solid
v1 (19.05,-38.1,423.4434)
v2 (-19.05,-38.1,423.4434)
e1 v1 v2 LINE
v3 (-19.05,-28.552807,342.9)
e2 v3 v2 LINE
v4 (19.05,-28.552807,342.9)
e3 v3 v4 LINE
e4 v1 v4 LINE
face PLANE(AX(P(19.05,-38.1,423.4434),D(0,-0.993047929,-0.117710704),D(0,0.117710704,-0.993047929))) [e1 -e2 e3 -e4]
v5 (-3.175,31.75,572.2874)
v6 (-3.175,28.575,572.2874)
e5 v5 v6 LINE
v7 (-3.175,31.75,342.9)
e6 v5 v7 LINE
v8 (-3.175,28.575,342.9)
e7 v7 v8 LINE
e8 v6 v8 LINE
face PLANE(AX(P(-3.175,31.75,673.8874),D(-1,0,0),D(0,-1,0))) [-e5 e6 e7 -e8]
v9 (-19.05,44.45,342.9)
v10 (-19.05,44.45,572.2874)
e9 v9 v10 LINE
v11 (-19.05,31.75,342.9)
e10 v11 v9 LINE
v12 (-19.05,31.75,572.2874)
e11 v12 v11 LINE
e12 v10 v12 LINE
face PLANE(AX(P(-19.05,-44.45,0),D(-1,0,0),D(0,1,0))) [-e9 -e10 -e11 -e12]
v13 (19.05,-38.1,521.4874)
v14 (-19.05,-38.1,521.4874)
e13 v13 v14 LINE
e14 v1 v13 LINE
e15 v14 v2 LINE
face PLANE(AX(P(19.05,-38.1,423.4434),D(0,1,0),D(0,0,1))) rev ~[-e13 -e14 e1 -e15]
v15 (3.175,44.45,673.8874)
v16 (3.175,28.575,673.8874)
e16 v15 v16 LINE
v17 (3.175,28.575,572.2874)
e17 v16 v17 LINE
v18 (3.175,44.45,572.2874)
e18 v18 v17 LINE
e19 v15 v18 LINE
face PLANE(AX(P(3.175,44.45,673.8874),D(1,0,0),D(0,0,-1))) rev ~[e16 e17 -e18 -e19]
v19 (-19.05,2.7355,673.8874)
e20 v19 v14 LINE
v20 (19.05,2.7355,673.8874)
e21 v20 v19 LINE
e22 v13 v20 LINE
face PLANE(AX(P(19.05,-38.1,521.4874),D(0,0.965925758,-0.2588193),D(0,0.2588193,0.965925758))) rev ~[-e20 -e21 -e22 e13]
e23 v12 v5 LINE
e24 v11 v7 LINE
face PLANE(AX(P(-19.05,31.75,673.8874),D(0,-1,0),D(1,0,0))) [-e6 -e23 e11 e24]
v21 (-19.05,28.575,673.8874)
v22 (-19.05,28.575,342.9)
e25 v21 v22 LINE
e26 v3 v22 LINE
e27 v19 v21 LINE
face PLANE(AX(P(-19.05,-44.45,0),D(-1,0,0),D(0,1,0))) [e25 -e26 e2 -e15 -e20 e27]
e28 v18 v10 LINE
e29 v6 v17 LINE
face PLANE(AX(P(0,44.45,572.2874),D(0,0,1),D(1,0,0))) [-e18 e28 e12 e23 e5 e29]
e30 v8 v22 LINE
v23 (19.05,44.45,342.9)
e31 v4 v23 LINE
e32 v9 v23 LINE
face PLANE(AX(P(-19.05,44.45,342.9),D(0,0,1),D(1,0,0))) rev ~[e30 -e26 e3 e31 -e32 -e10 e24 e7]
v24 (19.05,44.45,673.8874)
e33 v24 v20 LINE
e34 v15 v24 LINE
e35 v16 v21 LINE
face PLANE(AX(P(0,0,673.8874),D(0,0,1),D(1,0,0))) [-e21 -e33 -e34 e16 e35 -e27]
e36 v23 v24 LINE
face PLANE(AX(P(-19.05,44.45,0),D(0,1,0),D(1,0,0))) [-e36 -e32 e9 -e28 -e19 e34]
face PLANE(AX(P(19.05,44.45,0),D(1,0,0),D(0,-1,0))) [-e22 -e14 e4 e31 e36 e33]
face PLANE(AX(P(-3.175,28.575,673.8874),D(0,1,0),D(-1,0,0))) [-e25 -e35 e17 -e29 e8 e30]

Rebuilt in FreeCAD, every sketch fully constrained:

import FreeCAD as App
import Part
import Sketcher

V = App.Vector
Q = App.Units.Quantity

doc = App.newDocument("Part")
body = doc.addObject("PartDesign::Body", "Body")

# Sketch on XY plane
sketch1 = body.newObject("Sketcher::SketchObject", "Sketch")
sketch1.AttachmentSupport = (doc.getObject("XY_Plane"), [""])
sketch1.MapMode = "FlatFace"
sketch1.addGeometry([
    Part.LineSegment(V(-19, -44, 0), V(19, -44, 0)),
    Part.LineSegment(V(19, -44, 0), V(19, 44, 0)),
    Part.LineSegment(V(19, 44, 0), V(-19, 44, 0)),
    Part.LineSegment(V(-19, 44, 0), V(-19, -44, 0)),
], False)
sketch1.addConstraint([
    Sketcher.Constraint("Coincident", 0, 2, 1, 1),
    Sketcher.Constraint("Coincident", 1, 2, 2, 1),
    Sketcher.Constraint("Coincident", 2, 2, 3, 1),
    Sketcher.Constraint("Coincident", 3, 2, 0, 1),
    Sketcher.Constraint("Horizontal", 0),
    Sketcher.Constraint("Vertical", 1),
    Sketcher.Constraint("Horizontal", 2),
    Sketcher.Constraint("Vertical", 3),
    Sketcher.Constraint("Symmetric", 0, 2, 2, 2, -1, 1),
    Sketcher.Constraint("DistanceX", 0, 1, 0, 2, Q("1.5 in")),
    Sketcher.Constraint("DistanceY", 1, 1, 1, 2, Q("3.5 in")),
])
pad1 = body.newObject("PartDesign::Pad", "Pad")
pad1.Profile = sketch1
pad1.Length = Q("26.531 in")

# Sketch on YZ plane
sketch2 = body.newObject("Sketcher::SketchObject", "Sketch001")
sketch2.AttachmentSupport = (doc.getObject("YZ_Plane"), [""])
sketch2.MapMode = "FlatFace"
sketch2.AttachmentOffset = App.Placement(V(0, 0, 0.75 * 25.4), App.Rotation())
sketch2.addGeometry([
    Part.LineSegment(V(-44, 674, 0), V(-44, 0, 0)),  # 0
    Part.LineSegment(V(-44, 0, 0), V(-18, 0, 0)),  # 1
    Part.LineSegment(V(-18, 0, 0), V(-18, 252, 0)),  # 2
    Part.LineSegment(V(-18, 252, 0), V(-38, 423, 0)),  # 3
    Part.LineSegment(V(-38, 423, 0), V(-38, 521, 0)),  # 4
    Part.LineSegment(V(-38, 521, 0), V(3, 674, 0)),  # 5
    Part.LineSegment(V(3, 674, 0), V(-44, 674, 0)),  # 6
], False)
sketch2.addConstraint([
    Sketcher.Constraint("Coincident", 0, 2, 1, 1),
    Sketcher.Constraint("Coincident", 1, 2, 2, 1),
    Sketcher.Constraint("Coincident", 2, 2, 3, 1),
    Sketcher.Constraint("Coincident", 3, 2, 4, 1),
    Sketcher.Constraint("Coincident", 4, 2, 5, 1),
    Sketcher.Constraint("Coincident", 5, 2, 6, 1),
    Sketcher.Constraint("Coincident", 6, 2, 0, 1),
    Sketcher.Constraint("Vertical", 0),
    Sketcher.Constraint("Horizontal", 1),
    Sketcher.Constraint("Vertical", 2),
    Sketcher.Constraint("Vertical", 4),
    Sketcher.Constraint("Horizontal", 6),
    Sketcher.Constraint("PointOnObject", 0, 2, -1),
    Sketcher.Constraint("DistanceY", 4, 2, 5, 2, Q("6 in")),
    Sketcher.Constraint("DistanceY", 4, 1, 4, 2, Q("3.86 in")),
    Sketcher.Constraint("DistanceX", 3, 2, 2, 2, Q("0.8 in")),
    Sketcher.Constraint("DistanceX", 0, 2, 3, 2, Q("0.25 in")),
    Sketcher.Constraint("Angle", 5, Q("75 deg")),
    Sketcher.Constraint("DistanceX", 1, 2, -1, 1, Q("0.7 in")),
    Sketcher.Constraint("DistanceY", 0, 2, 0, 1, Q("26.531 in")),
    Sketcher.Constraint("Angle", 3, Q("96.76 deg")),
])
pocket1 = body.newObject("PartDesign::Pocket", "Pocket")
pocket1.Profile = sketch2
pocket1.Length = Q("6 in")

# Sketch on XZ plane
sketch3 = body.newObject("Sketcher::SketchObject", "Sketch002")
sketch3.AttachmentSupport = (doc.getObject("XZ_Plane"), [""])
sketch3.MapMode = "FlatFace"
sketch3.AttachmentOffset = App.Placement(V(0, 0, -1.75 * 25.4), App.Rotation())
sketch3.addGeometry([
    Part.LineSegment(V(3, 674, 0), V(3, 572, 0)),
    Part.LineSegment(V(3, 572, 0), V(-19, 572, 0)),
    Part.LineSegment(V(-19, 572, 0), V(-19, 674, 0)),
    Part.LineSegment(V(-19, 674, 0), V(3, 674, 0)),
], False)
sketch3.addConstraint([
    Sketcher.Constraint("Coincident", 0, 2, 1, 1),
    Sketcher.Constraint("Coincident", 1, 2, 2, 1),
    Sketcher.Constraint("Coincident", 2, 2, 3, 1),
    Sketcher.Constraint("Coincident", 3, 2, 0, 1),
    Sketcher.Constraint("Vertical", 0),
    Sketcher.Constraint("Horizontal", 1),
    Sketcher.Constraint("Vertical", 2),
    Sketcher.Constraint("Horizontal", 3),
    Sketcher.Constraint("DistanceY", 0, 2, 0, 1, Q("4 in")),
    Sketcher.Constraint("DistanceX", 1, 2, 1, 1, Q("0.875 in")),
    Sketcher.Constraint("DistanceX", 1, 2, -1, 1, Q("0.75 in")),
    Sketcher.Constraint("DistanceY", -1, 1, 0, 2, Q("22.531 in")),
])
pocket2 = body.newObject("PartDesign::Pocket", "Pocket001")
pocket2.Profile = sketch3
pocket2.Length = Q("0.625 in")
pocket2.Reversed = True

# Sketch on XZ plane
sketch4 = body.newObject("Sketcher::SketchObject", "Sketch003")
sketch4.AttachmentSupport = (doc.getObject("XZ_Plane"), [""])
sketch4.MapMode = "FlatFace"
sketch4.AttachmentOffset = App.Placement(V(0, 0, -1.75 * 25.4), App.Rotation())
sketch4.addGeometry([
    Part.LineSegment(V(19, 343, 0), V(19, 216, 0)),
    Part.LineSegment(V(19, 216, 0), V(-19, 216, 0)),
    Part.LineSegment(V(-19, 216, 0), V(-19, 343, 0)),
    Part.LineSegment(V(-19, 343, 0), V(19, 343, 0)),
], False)
sketch4.addConstraint([
    Sketcher.Constraint("Coincident", 0, 2, 1, 1),
    Sketcher.Constraint("Coincident", 1, 2, 2, 1),
    Sketcher.Constraint("Coincident", 2, 2, 3, 1),
    Sketcher.Constraint("Coincident", 3, 2, 0, 1),
    Sketcher.Constraint("Vertical", 0),
    Sketcher.Constraint("Horizontal", 1),
    Sketcher.Constraint("Vertical", 2),
    Sketcher.Constraint("Horizontal", 3),
    Sketcher.Constraint("DistanceY", 0, 2, 0, 1, Q("5 in")),
    Sketcher.Constraint("DistanceX", 1, 2, 1, 1, Q("1.5 in")),
    Sketcher.Constraint("DistanceY", -1, 1, 0, 2, Q("8.5 in")),
    Sketcher.Constraint("DistanceX", -1, 1, 0, 2, Q("0.75 in")),
])
pocket3 = body.newObject("PartDesign::Pocket", "Pocket002")
pocket3.Profile = sketch4
pocket3.Length = Q("0.625 in")
pocket3.Reversed = True

# Sketch on XY plane
sketch5 = body.newObject("Sketcher::SketchObject", "Sketch004")
sketch5.AttachmentSupport = (doc.getObject("XY_Plane"), [""])
sketch5.MapMode = "FlatFace"
sketch5.addGeometry([
    Part.LineSegment(V(-41, -56, 0), V(-41, 60, 0)),
    Part.LineSegment(V(-41, 60, 0), V(68, 60, 0)),
    Part.LineSegment(V(68, 60, 0), V(68, -56, 0)),
    Part.LineSegment(V(68, -56, 0), V(-41, -56, 0)),
], False)
sketch5.addConstraint([
    Sketcher.Constraint("Coincident", 0, 2, 1, 1),
    Sketcher.Constraint("Coincident", 1, 2, 2, 1),
    Sketcher.Constraint("Coincident", 2, 2, 3, 1),
    Sketcher.Constraint("Coincident", 3, 2, 0, 1),
    Sketcher.Constraint("Vertical", 0),
    Sketcher.Constraint("Horizontal", 1),
    Sketcher.Constraint("Vertical", 2),
    Sketcher.Constraint("Horizontal", 3),
    Sketcher.Constraint("DistanceY", -1, 1, 0, 2, Q("2.36 in")),
    Sketcher.Constraint("DistanceX", 1, 1, 1, 2, Q("4.2817 in")),
    Sketcher.Constraint("DistanceY", 0, 1, 0, 2, Q("4.5559 in")),
    Sketcher.Constraint("DistanceX", 0, 2, -1, 1, Q("1.6241 in")),
])
pocket4 = body.newObject("PartDesign::Pocket", "Pocket003")
pocket4.Profile = sketch5
pocket4.Length = Q("13.5 in")
pocket4.Reversed = True

# Sketch on XY plane
sketch6 = body.newObject("Sketcher::SketchObject", "Sketch005")
sketch6.AttachmentSupport = (doc.getObject("XY_Plane"), [""])
sketch6.MapMode = "FlatFace"
sketch6.AttachmentOffset = App.Placement(V(0, 0, 26.531 * 25.4), App.Rotation())
sketch6.addGeometry([
    Part.LineSegment(V(-3.2, 31.8, 0), V(-19.1, 31.8, 0)),
    Part.LineSegment(V(-19.1, 31.8, 0), V(-19.1, 28.6, 0)),
    Part.LineSegment(V(-19.1, 28.6, 0), V(-3.2, 28.6, 0)),
    Part.LineSegment(V(-3.2, 28.6, 0), V(-3.2, 31.8, 0)),
], False)
sketch6.addConstraint([
    Sketcher.Constraint("Coincident", 0, 2, 1, 1),
    Sketcher.Constraint("Coincident", 1, 2, 2, 1),
    Sketcher.Constraint("Coincident", 2, 2, 3, 1),
    Sketcher.Constraint("Coincident", 3, 2, 0, 1),
    Sketcher.Constraint("Horizontal", 0),
    Sketcher.Constraint("Vertical", 1),
    Sketcher.Constraint("Horizontal", 2),
    Sketcher.Constraint("Vertical", 3),
    Sketcher.Constraint("DistanceX", 0, 2, 0, 1, Q("0.625 in")),
    Sketcher.Constraint("DistanceY", 1, 2, 1, 1, Q("0.125 in")),
    Sketcher.Constraint("DistanceX", 2, 2, -1, 1, Q("0.125 in")),
    Sketcher.Constraint("DistanceY", -1, 1, 0, 2, Q("1.25 in")),
])
pocket5 = body.newObject("PartDesign::Pocket", "Pocket004")
pocket5.Profile = sketch6
pocket5.Length = Q("20 in")

doc.recompute()
